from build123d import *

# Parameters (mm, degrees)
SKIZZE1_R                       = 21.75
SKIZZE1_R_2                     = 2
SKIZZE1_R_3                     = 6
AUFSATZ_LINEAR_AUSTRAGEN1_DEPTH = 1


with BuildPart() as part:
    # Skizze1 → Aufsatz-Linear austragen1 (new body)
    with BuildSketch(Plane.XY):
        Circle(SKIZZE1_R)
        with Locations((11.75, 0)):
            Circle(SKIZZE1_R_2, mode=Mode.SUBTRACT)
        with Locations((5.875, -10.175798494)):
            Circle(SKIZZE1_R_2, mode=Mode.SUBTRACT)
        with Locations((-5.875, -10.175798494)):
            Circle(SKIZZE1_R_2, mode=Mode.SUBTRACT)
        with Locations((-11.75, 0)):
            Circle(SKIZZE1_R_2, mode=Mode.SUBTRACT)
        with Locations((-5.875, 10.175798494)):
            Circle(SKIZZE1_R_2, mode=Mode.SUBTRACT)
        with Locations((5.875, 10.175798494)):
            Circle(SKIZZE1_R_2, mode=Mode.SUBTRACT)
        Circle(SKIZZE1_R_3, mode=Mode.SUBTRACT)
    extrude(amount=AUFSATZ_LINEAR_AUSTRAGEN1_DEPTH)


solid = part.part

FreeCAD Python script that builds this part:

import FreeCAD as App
import Part
import Sketcher
from FreeCAD import Vector
Q = App.Units.Quantity

doc = App.newDocument("Part")
body = doc.addObject("PartDesign::Body", "Body")

sketch1 = doc.addObject("Sketcher::SketchObject", "Sketch")
body.addObject(sketch1)
sketch1.AttachmentSupport = (doc.XY_Plane, [""])
sketch1.MapMode = "FlatFace"
sketch1.addGeometry([
    Part.Circle(Vector(0, 0, 0), Vector(0, 0, 1), 21.75),
    Part.Circle(Vector(-5.875, -10.175798, 0), Vector(0, 0, 1), 2),
    Part.Circle(Vector(5.875, -10.175798, 0), Vector(0, 0, 1), 2),
    Part.Circle(Vector(-11.75, 0, 0), Vector(0, 0, 1), 2),
    Part.Circle(Vector(-5.875, 10.175798, 0), Vector(0, 0, 1), 2),
    Part.Circle(Vector(0, 0, 0), Vector(0, 0, 1), 6),
    Part.Circle(Vector(11.75, 0, 0), Vector(0, 0, 1), 2),
    Part.Circle(Vector(5.875, 10.175798, 0), Vector(0, 0, 1), 2),
], False)
sketch1.addConstraint([
    Sketcher.Constraint("Coincident", 0, 3, -1, 1),
    Sketcher.Constraint("Coincident", 5, 3, -1, 1),
    Sketcher.Constraint("Equal", 1, 2),
    Sketcher.Constraint("Equal", 2, 3),
    Sketcher.Constraint("Equal", 3, 4),
    Sketcher.Constraint("Equal", 4, 6),
    Sketcher.Constraint("Equal", 6, 7),
    Sketcher.Constraint("Symmetric", 2, 3, 4, 3, -1, 1),
    Sketcher.Constraint("Symmetric", 3, 3, 6, 3, -1, 1),
    Sketcher.Constraint("Symmetric", 1, 3, 7, 3, -1, 1),
    Sketcher.Constraint("Symmetric", 1, 3, 2, 3, -2),
    Sketcher.Constraint("PointOnObject", 3, 3, -1),
    Sketcher.Constraint("Diameter", 1, Q("4 mm")),
    Sketcher.Constraint("Diameter", 5, Q("12 mm")),
    Sketcher.Constraint("Diameter", 0, Q("43.5 mm")),
    Sketcher.Constraint("DistanceX", 3, 3, -1, 1, Q("11.75 mm")),
    Sketcher.Constraint("DistanceX", 1, 3, 2, 3, Q("11.75 mm")),
    Sketcher.Constraint("DistanceY", 1, 3, -1, 1, Q("10.175798 mm")),
])
pad1 = doc.addObject("PartDesign::Pad", "Pad")
body.addObject(pad1)
pad1.Profile = sketch1
pad1.Length = 1

doc.recompute()
